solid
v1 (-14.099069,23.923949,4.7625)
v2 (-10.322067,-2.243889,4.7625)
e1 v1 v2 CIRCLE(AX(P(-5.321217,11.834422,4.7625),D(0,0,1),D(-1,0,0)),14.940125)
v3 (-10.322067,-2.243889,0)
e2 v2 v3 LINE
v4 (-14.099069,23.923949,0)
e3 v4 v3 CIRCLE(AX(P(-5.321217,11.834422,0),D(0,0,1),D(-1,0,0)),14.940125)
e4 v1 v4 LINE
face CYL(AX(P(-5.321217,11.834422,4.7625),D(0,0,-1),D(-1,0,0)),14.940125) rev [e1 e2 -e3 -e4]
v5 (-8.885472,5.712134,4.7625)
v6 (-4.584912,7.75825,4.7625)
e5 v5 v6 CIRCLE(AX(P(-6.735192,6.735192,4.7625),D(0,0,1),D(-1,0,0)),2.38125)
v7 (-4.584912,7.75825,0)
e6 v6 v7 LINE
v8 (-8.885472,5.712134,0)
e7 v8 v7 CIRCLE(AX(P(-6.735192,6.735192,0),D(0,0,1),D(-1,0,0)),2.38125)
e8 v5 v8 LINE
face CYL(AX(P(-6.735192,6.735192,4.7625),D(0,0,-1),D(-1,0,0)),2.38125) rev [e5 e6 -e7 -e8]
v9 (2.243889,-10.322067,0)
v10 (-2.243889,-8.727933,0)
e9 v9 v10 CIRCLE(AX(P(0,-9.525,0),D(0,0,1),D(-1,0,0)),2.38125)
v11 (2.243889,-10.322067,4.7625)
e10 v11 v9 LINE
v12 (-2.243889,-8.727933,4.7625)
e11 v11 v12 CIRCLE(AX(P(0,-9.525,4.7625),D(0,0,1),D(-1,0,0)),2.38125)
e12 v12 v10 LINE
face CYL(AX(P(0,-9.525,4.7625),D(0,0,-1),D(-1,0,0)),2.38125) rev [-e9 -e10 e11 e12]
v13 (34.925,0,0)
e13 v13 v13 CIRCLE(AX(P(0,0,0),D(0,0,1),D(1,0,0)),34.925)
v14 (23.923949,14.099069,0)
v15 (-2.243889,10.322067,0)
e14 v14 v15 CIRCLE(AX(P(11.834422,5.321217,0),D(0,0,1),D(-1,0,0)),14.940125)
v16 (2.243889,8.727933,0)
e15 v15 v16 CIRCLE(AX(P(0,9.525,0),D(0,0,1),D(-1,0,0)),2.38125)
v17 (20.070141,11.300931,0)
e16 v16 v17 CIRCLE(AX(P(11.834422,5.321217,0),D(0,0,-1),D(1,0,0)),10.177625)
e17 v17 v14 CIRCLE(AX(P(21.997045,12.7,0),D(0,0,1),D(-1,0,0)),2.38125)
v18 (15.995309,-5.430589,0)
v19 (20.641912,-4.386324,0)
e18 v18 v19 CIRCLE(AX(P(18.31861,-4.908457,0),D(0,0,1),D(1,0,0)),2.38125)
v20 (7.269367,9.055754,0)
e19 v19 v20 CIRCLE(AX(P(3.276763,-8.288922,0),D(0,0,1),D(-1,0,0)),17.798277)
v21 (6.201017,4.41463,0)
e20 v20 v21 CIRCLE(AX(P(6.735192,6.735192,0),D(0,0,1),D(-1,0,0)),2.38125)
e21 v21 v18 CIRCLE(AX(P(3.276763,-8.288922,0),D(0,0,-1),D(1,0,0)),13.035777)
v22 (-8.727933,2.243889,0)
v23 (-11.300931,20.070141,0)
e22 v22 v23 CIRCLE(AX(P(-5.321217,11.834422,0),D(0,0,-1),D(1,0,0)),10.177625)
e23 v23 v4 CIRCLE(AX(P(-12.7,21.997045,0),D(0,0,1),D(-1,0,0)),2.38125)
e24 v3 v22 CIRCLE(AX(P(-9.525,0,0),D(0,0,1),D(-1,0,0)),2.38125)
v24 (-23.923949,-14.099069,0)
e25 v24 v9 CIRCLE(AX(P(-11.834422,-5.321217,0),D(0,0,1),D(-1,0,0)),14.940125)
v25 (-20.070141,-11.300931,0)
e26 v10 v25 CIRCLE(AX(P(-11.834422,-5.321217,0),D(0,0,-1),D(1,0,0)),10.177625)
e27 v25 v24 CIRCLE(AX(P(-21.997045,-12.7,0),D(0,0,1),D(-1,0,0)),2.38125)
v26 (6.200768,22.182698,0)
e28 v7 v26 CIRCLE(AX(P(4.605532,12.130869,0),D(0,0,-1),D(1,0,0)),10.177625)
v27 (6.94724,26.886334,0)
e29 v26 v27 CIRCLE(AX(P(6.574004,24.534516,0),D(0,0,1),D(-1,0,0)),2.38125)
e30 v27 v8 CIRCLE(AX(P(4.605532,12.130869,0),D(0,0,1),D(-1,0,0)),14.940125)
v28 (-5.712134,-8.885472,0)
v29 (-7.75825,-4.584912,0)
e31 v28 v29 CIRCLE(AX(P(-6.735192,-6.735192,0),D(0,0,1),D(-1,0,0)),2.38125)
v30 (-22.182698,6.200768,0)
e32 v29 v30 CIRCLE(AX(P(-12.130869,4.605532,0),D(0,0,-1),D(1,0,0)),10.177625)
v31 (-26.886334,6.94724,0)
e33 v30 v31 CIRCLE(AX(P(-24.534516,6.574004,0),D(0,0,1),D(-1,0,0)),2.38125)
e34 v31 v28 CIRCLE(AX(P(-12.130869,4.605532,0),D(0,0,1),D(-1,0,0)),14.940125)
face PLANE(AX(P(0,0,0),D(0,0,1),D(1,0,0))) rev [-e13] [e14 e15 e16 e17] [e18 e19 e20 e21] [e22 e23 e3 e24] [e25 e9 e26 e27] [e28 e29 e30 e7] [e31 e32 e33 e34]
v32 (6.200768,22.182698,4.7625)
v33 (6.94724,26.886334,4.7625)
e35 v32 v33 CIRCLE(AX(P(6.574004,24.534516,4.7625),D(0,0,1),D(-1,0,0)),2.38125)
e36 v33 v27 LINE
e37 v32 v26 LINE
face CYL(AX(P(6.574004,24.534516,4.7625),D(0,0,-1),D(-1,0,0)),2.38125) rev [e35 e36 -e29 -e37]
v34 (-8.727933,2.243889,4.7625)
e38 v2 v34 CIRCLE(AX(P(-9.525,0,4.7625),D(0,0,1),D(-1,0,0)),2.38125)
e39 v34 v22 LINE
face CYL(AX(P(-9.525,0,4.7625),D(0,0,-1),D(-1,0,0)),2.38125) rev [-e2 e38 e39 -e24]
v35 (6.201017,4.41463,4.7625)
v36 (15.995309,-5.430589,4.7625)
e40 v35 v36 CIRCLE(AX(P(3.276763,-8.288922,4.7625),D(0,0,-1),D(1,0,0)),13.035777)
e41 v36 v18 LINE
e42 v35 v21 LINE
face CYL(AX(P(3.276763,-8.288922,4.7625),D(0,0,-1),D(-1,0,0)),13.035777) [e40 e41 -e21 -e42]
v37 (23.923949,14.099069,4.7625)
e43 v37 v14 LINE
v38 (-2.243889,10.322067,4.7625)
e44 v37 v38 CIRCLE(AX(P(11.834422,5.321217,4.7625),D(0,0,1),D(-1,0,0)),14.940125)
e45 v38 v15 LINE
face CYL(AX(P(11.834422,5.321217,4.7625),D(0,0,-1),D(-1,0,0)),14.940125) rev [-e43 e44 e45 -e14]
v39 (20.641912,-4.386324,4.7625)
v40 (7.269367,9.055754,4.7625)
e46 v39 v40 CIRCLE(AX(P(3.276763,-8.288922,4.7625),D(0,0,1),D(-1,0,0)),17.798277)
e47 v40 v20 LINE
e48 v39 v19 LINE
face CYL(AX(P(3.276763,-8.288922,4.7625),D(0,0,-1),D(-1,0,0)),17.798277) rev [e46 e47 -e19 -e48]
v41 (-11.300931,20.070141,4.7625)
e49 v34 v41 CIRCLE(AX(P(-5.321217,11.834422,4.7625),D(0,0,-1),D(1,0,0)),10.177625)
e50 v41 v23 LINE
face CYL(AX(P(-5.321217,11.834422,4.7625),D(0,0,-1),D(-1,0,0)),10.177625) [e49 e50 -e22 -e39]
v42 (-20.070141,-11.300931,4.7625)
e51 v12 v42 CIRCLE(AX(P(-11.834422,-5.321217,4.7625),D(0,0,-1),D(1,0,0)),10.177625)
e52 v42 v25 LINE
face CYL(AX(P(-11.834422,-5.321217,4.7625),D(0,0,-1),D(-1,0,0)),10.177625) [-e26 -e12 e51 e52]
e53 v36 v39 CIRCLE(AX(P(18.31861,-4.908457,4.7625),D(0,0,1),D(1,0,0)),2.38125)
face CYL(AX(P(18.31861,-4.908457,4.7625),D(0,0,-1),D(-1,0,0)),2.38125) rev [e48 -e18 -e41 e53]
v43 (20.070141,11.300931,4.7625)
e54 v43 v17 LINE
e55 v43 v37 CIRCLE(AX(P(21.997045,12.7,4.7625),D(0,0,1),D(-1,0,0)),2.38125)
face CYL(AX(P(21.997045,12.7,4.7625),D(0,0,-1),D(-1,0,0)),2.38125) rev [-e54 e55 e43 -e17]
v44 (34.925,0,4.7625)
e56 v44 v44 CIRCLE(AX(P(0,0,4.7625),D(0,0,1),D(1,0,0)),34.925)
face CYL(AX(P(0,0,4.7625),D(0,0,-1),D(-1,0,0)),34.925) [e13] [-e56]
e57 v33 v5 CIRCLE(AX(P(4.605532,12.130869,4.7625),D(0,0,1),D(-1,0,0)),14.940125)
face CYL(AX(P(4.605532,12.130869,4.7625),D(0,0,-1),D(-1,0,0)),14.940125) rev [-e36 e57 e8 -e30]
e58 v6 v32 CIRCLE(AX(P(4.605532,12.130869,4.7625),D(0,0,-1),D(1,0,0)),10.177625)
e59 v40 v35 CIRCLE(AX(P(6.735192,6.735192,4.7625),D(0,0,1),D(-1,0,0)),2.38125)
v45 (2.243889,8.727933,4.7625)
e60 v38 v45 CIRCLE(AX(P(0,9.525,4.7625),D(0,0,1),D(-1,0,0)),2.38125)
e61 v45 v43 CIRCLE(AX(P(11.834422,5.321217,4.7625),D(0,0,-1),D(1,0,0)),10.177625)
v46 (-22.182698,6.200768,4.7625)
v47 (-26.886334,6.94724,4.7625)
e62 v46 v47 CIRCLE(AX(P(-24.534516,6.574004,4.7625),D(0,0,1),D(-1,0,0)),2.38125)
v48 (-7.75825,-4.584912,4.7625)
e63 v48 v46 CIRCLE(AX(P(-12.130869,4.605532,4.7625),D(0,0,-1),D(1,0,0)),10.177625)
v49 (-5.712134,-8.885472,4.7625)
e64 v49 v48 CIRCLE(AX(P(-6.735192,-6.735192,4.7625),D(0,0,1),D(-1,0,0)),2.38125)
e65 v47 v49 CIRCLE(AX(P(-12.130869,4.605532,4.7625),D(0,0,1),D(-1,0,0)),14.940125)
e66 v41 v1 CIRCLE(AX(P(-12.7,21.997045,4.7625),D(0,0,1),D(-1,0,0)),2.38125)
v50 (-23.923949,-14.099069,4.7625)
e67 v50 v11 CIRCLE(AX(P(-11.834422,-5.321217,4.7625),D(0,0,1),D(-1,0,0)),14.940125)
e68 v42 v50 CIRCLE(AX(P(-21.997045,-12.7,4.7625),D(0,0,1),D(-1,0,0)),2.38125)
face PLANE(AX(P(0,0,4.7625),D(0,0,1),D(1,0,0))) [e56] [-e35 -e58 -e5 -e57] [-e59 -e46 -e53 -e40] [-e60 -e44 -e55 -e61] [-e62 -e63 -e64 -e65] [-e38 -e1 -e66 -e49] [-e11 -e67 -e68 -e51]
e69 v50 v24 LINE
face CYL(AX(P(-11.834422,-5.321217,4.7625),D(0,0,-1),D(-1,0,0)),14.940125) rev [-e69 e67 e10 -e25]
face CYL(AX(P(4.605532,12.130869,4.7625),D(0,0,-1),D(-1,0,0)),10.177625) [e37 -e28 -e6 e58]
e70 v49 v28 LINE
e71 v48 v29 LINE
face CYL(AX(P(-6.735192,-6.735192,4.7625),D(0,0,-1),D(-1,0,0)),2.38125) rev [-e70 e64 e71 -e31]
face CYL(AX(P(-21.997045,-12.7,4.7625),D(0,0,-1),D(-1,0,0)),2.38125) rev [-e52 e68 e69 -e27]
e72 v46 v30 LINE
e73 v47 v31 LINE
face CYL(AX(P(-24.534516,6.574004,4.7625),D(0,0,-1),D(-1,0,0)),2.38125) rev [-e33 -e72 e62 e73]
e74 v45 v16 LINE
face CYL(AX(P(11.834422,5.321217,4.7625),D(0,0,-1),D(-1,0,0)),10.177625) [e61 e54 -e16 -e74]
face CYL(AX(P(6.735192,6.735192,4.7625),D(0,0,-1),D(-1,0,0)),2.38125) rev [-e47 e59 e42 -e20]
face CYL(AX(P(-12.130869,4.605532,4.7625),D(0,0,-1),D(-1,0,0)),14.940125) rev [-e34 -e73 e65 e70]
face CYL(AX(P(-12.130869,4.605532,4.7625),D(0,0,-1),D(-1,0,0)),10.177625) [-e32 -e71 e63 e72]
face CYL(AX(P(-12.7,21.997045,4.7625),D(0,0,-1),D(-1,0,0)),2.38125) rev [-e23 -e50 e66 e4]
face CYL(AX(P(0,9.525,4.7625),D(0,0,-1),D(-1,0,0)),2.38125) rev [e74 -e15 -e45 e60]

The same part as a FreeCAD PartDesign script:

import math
import FreeCAD as App
import Part
import Sketcher

V = App.Vector
Q = App.Units.Quantity

doc = App.newDocument("Part")
body = doc.addObject("PartDesign::Body", "Body")

# Sketch on XY plane
sketch1 = doc.addObject("Sketcher::SketchObject", "Sketch")
body.addObject(sketch1)
sketch1.AttachmentSupport = (doc.XY_Plane, [""])
sketch1.MapMode = "FlatFace"
sketch1.addGeometry(Part.Circle(V(0, 0, 0), V(0, 0, 1), 34.9), False)
sketch1.addGeometry(Part.ArcOfCircle(Part.Circle(V(0, -9.5, 0), V(0, 0, 1), 2.4), math.radians(-20), math.radians(160)), False)
sketch1.addGeometry(Part.ArcOfCircle(Part.Circle(V(-11.8, -5.3, 0), V(0, 0, 1), 14.9), math.radians(-144), math.radians(-20)), False)
sketch1.addGeometry(Part.ArcOfCircle(Part.Circle(V(-22, -12.7, 0), V(0, 0, 1), 2.4), math.radians(36), math.radians(216)), False)
sketch1.addGeometry(Part.ArcOfCircle(Part.Circle(V(-11.8, -5.3, 0), V(0, 0, 1), 10.2), math.radians(-144), math.radians(-20)), False)
sketch1.addGeometry(Part.ArcOfCircle(Part.Circle(V(-6.7, -6.7, 0), V(0, 0, 1), 2.4), math.radians(-65), math.radians(115)), False)
sketch1.addGeometry(Part.ArcOfCircle(Part.Circle(V(-12.1, 4.6, 0), V(0, 0, 1), 14.9), math.radians(171), math.radians(295)), False)
sketch1.addGeometry(Part.ArcOfCircle(Part.Circle(V(-24.5, 6.6, 0), V(0, 0, 1), 2.4), math.radians(-9), math.radians(171)), False)
sketch1.addGeometry(Part.ArcOfCircle(Part.Circle(V(-12.1, 4.6, 0), V(0, 0, 1), 10.2), math.radians(171), math.radians(295)), False)
sketch1.addGeometry(Part.ArcOfCircle(Part.Circle(V(3.3, -8.3, 0), V(0, 0, 1), 13), math.radians(13), math.radians(77)), False)
sketch1.addGeometry(Part.ArcOfCircle(Part.Circle(V(6.7, 6.7, 0), V(0, 0, 1), 2.4), math.radians(77), math.radians(257)), False)
sketch1.addGeometry(Part.ArcOfCircle(Part.Circle(V(3.3, -8.3, 0), V(0, 0, 1), 17.8), math.radians(13), math.radians(77)), False)
sketch1.addGeometry(Part.ArcOfCircle(Part.Circle(V(18.3, -4.9, 0), V(0, 0, 1), 2.4), math.radians(-167), math.radians(13)), False)
sketch1.addGeometry(Part.ArcOfCircle(Part.Circle(V(-9.5, 0, 0), V(0, 0, 1), 2.4), math.radians(-110), math.radians(70)), False)
sketch1.addGeometry(Part.ArcOfCircle(Part.Circle(V(-5.3, 11.8, 0), V(0, 0, 1), 14.9), math.radians(126), math.radians(250)), False)
sketch1.addGeometry(Part.ArcOfCircle(Part.Circle(V(-12.7, 22, 0), V(0, 0, 1), 2.4), math.radians(-54), math.radians(126)), False)
sketch1.addGeometry(Part.ArcOfCircle(Part.Circle(V(-5.3, 11.8, 0), V(0, 0, 1), 10.2), math.radians(126), math.radians(250)), False)
sketch1.addGeometry(Part.ArcOfCircle(Part.Circle(V(11.8, 5.3, 0), V(0, 0, 1), 10.2), math.radians(36), math.radians(160)), False)
sketch1.addGeometry(Part.ArcOfCircle(Part.Circle(V(0, 9.5, 0), V(0, 0, 1), 2.4), math.radians(160), math.radians(340)), False)
sketch1.addGeometry(Part.ArcOfCircle(Part.Circle(V(11.8, 5.3, 0), V(0, 0, 1), 14.9), math.radians(36), math.radians(160)), False)
sketch1.addGeometry(Part.ArcOfCircle(Part.Circle(V(22, 12.7, 0), V(0, 0, 1), 2.4), math.radians(-144), math.radians(36)), False)
sketch1.addGeometry(Part.ArcOfCircle(Part.Circle(V(-6.7, 6.7, 0), V(0, 0, 1), 2.4), math.radians(-155), math.radians(25)), False)
sketch1.addGeometry(Part.ArcOfCircle(Part.Circle(V(4.6, 12.1, 0), V(0, 0, 1), 14.9), math.radians(81), math.radians(205)), False)
sketch1.addGeometry(Part.ArcOfCircle(Part.Circle(V(6.6, 24.5, 0), V(0, 0, 1), 2.4), math.radians(-99), math.radians(81)), False)
sketch1.addGeometry(Part.ArcOfCircle(Part.Circle(V(4.6, 12.1, 0), V(0, 0, 1), 10.2), math.radians(81), math.radians(205)), False)
sketch1.addConstraint(Sketcher.Constraint("Tangent", 1, 1, 2, 2))
sketch1.addConstraint(Sketcher.Constraint("Tangent", 2, 1, 3, 2))
sketch1.addConstraint(Sketcher.Constraint("Tangent", 3, 1, 4, 1))
sketch1.addConstraint(Sketcher.Constraint("Tangent", 4, 2, 1, 2))
sketch1.addConstraint(Sketcher.Constraint("Tangent", 5, 1, 6, 2))
sketch1.addConstraint(Sketcher.Constraint("Tangent", 6, 1, 7, 2))
sketch1.addConstraint(Sketcher.Constraint("Tangent", 7, 1, 8, 1))
sketch1.addConstraint(Sketcher.Constraint("Tangent", 8, 2, 5, 2))
sketch1.addConstraint(Sketcher.Constraint("Tangent", 9, 2, 10, 2))
sketch1.addConstraint(Sketcher.Constraint("Tangent", 10, 1, 11, 2))
sketch1.addConstraint(Sketcher.Constraint("Tangent", 11, 1, 12, 2))
sketch1.addConstraint(Sketcher.Constraint("Tangent", 12, 1, 9, 1))
sketch1.addConstraint(Sketcher.Constraint("Tangent", 13, 1, 14, 2))
sketch1.addConstraint(Sketcher.Constraint("Tangent", 14, 1, 15, 2))
sketch1.addConstraint(Sketcher.Constraint("Tangent", 15, 1, 16, 1))
sketch1.addConstraint(Sketcher.Constraint("Tangent", 16, 2, 13, 2))
sketch1.addConstraint(Sketcher.Constraint("Tangent", 17, 2, 18, 2))
sketch1.addConstraint(Sketcher.Constraint("Tangent", 18, 1, 19, 2))
sketch1.addConstraint(Sketcher.Constraint("Tangent", 19, 1, 20, 2))
sketch1.addConstraint(Sketcher.Constraint("Tangent", 20, 1, 17, 1))
sketch1.addConstraint(Sketcher.Constraint("Tangent", 21, 1, 22, 2))
sketch1.addConstraint(Sketcher.Constraint("Tangent", 22, 1, 23, 2))
sketch1.addConstraint(Sketcher.Constraint("Tangent", 23, 1, 24, 1))
sketch1.addConstraint(Sketcher.Constraint("Tangent", 24, 2, 21, 2))
sketch1.addConstraint(Sketcher.Constraint("Coincident", 0, 3, -1, 1))
sketch1.addConstraint(Sketcher.Constraint("Coincident", 4, 3, 2, 3))
sketch1.addConstraint(Sketcher.Constraint("Coincident", 8, 3, 6, 3))
sketch1.addConstraint(Sketcher.Constraint("Coincident", 11, 3, 9, 3))
sketch1.addConstraint(Sketcher.Constraint("Coincident", 16, 3, 14, 3))
sketch1.addConstraint(Sketcher.Constraint("Coincident", 19, 3, 17, 3))
sketch1.addConstraint(Sketcher.Constraint("Coincident", 24, 3, 22, 3))
sketch1.addConstraint(Sketcher.Constraint("Equal", 3, 5))
sketch1.addConstraint(Sketcher.Constraint("Equal", 2, 6))
sketch1.addConstraint(Sketcher.Constraint("Equal", 7, 10))
sketch1.addConstraint(Sketcher.Constraint("Equal", 12, 13))
sketch1.addConstraint(Sketcher.Constraint("Equal", 6, 14))
sketch1.addConstraint(Sketcher.Constraint("Equal", 16, 17))
sketch1.addConstraint(Sketcher.Constraint("Equal", 15, 18))
sketch1.addConstraint(Sketcher.Constraint("Equal", 20, 21))
sketch1.addConstraint(Sketcher.Constraint("Equal", 19, 22))
sketch1.addConstraint(Sketcher.Constraint("Symmetric", 5, 3, 10, 3, -1, 1))
sketch1.addConstraint(Sketcher.Constraint("Symmetric", 2, 3, 17, 3, -1, 1))
sketch1.addConstraint(Sketcher.Constraint("Symmetric", 10, 3, 21, 3, -2))
sketch1.addConstraint(Sketcher.Constraint("Symmetric", 1, 3, 18, 3, -1))
sketch1.addConstraint(Sketcher.Constraint("PointOnObject", 13, 3, -1))
sketch1.addConstraint(Sketcher.Constraint("Diameter", 0, Q("2.75 in")))
sketch1.addConstraint(Sketcher.Constraint("Radius", 1, Q("0.09375 in")))
sketch1.addConstraint(Sketcher.Constraint("DistanceY", 3, 3, -1, 1, Q("0.5 in")))
sketch1.addConstraint(Sketcher.Constraint("DistanceX", 15, 3, -1, 1, Q("0.5 in")))
sketch1.addConstraint(Sketcher.Constraint("DistanceY", -1, 1, 20, 3, Q("0.5 in")))
sketch1.addConstraint(Sketcher.Constraint("DistanceY", 1, 3, -1, 1, Q("0.375 in")))
sketch1.addConstraint(Sketcher.Constraint("DistanceX", 13, 3, -1, 1, Q("0.375 in")))
sketch1.addConstraint(Sketcher.Constraint("Radius", 2, 14.940125))
sketch1.addConstraint(Sketcher.Constraint("Radius", 9, 13.035777))
sketch1.addConstraint(Sketcher.Constraint("DistanceX", 7, 1, -1, 1, 22.182698))
sketch1.addConstraint(Sketcher.Constraint("DistanceY", -1, 1, 23, 1, 22.182698))
sketch1.addConstraint(Sketcher.Constraint("DistanceX", 12, 3, 11, 1, 2.323301))
sketch1.addConstraint(Sketcher.Constraint("DistanceX", 14, 1, 8, 3, 1.9682))
sketch1.addConstraint(Sketcher.Constraint("DistanceX", 23, 1, 10, 1, 1.068599))
sketch1.addConstraint(Sketcher.Constraint("DistanceX", 6, 3, -1, 1, 12.130869))
sketch1.addConstraint(Sketcher.Constraint("DistanceY", 9, 3, -1, 1, 8.288922))
sketch1.addConstraint(Sketcher.Constraint("DistanceX", -1, 1, 12, 3, 18.31861))
sketch1.addConstraint(Sketcher.Constraint("DistanceY", -1, 1, 22, 3, 12.130869))
sketch1.addConstraint(Sketcher.Constraint("DistanceX", -1, 1, 1, 1, 2.243889))
pad1 = doc.addObject("PartDesign::Pad", "Pad")
body.addObject(pad1)
pad1.Profile = sketch1
pad1.Length = Q("0.1875 in")

doc.recompute()
